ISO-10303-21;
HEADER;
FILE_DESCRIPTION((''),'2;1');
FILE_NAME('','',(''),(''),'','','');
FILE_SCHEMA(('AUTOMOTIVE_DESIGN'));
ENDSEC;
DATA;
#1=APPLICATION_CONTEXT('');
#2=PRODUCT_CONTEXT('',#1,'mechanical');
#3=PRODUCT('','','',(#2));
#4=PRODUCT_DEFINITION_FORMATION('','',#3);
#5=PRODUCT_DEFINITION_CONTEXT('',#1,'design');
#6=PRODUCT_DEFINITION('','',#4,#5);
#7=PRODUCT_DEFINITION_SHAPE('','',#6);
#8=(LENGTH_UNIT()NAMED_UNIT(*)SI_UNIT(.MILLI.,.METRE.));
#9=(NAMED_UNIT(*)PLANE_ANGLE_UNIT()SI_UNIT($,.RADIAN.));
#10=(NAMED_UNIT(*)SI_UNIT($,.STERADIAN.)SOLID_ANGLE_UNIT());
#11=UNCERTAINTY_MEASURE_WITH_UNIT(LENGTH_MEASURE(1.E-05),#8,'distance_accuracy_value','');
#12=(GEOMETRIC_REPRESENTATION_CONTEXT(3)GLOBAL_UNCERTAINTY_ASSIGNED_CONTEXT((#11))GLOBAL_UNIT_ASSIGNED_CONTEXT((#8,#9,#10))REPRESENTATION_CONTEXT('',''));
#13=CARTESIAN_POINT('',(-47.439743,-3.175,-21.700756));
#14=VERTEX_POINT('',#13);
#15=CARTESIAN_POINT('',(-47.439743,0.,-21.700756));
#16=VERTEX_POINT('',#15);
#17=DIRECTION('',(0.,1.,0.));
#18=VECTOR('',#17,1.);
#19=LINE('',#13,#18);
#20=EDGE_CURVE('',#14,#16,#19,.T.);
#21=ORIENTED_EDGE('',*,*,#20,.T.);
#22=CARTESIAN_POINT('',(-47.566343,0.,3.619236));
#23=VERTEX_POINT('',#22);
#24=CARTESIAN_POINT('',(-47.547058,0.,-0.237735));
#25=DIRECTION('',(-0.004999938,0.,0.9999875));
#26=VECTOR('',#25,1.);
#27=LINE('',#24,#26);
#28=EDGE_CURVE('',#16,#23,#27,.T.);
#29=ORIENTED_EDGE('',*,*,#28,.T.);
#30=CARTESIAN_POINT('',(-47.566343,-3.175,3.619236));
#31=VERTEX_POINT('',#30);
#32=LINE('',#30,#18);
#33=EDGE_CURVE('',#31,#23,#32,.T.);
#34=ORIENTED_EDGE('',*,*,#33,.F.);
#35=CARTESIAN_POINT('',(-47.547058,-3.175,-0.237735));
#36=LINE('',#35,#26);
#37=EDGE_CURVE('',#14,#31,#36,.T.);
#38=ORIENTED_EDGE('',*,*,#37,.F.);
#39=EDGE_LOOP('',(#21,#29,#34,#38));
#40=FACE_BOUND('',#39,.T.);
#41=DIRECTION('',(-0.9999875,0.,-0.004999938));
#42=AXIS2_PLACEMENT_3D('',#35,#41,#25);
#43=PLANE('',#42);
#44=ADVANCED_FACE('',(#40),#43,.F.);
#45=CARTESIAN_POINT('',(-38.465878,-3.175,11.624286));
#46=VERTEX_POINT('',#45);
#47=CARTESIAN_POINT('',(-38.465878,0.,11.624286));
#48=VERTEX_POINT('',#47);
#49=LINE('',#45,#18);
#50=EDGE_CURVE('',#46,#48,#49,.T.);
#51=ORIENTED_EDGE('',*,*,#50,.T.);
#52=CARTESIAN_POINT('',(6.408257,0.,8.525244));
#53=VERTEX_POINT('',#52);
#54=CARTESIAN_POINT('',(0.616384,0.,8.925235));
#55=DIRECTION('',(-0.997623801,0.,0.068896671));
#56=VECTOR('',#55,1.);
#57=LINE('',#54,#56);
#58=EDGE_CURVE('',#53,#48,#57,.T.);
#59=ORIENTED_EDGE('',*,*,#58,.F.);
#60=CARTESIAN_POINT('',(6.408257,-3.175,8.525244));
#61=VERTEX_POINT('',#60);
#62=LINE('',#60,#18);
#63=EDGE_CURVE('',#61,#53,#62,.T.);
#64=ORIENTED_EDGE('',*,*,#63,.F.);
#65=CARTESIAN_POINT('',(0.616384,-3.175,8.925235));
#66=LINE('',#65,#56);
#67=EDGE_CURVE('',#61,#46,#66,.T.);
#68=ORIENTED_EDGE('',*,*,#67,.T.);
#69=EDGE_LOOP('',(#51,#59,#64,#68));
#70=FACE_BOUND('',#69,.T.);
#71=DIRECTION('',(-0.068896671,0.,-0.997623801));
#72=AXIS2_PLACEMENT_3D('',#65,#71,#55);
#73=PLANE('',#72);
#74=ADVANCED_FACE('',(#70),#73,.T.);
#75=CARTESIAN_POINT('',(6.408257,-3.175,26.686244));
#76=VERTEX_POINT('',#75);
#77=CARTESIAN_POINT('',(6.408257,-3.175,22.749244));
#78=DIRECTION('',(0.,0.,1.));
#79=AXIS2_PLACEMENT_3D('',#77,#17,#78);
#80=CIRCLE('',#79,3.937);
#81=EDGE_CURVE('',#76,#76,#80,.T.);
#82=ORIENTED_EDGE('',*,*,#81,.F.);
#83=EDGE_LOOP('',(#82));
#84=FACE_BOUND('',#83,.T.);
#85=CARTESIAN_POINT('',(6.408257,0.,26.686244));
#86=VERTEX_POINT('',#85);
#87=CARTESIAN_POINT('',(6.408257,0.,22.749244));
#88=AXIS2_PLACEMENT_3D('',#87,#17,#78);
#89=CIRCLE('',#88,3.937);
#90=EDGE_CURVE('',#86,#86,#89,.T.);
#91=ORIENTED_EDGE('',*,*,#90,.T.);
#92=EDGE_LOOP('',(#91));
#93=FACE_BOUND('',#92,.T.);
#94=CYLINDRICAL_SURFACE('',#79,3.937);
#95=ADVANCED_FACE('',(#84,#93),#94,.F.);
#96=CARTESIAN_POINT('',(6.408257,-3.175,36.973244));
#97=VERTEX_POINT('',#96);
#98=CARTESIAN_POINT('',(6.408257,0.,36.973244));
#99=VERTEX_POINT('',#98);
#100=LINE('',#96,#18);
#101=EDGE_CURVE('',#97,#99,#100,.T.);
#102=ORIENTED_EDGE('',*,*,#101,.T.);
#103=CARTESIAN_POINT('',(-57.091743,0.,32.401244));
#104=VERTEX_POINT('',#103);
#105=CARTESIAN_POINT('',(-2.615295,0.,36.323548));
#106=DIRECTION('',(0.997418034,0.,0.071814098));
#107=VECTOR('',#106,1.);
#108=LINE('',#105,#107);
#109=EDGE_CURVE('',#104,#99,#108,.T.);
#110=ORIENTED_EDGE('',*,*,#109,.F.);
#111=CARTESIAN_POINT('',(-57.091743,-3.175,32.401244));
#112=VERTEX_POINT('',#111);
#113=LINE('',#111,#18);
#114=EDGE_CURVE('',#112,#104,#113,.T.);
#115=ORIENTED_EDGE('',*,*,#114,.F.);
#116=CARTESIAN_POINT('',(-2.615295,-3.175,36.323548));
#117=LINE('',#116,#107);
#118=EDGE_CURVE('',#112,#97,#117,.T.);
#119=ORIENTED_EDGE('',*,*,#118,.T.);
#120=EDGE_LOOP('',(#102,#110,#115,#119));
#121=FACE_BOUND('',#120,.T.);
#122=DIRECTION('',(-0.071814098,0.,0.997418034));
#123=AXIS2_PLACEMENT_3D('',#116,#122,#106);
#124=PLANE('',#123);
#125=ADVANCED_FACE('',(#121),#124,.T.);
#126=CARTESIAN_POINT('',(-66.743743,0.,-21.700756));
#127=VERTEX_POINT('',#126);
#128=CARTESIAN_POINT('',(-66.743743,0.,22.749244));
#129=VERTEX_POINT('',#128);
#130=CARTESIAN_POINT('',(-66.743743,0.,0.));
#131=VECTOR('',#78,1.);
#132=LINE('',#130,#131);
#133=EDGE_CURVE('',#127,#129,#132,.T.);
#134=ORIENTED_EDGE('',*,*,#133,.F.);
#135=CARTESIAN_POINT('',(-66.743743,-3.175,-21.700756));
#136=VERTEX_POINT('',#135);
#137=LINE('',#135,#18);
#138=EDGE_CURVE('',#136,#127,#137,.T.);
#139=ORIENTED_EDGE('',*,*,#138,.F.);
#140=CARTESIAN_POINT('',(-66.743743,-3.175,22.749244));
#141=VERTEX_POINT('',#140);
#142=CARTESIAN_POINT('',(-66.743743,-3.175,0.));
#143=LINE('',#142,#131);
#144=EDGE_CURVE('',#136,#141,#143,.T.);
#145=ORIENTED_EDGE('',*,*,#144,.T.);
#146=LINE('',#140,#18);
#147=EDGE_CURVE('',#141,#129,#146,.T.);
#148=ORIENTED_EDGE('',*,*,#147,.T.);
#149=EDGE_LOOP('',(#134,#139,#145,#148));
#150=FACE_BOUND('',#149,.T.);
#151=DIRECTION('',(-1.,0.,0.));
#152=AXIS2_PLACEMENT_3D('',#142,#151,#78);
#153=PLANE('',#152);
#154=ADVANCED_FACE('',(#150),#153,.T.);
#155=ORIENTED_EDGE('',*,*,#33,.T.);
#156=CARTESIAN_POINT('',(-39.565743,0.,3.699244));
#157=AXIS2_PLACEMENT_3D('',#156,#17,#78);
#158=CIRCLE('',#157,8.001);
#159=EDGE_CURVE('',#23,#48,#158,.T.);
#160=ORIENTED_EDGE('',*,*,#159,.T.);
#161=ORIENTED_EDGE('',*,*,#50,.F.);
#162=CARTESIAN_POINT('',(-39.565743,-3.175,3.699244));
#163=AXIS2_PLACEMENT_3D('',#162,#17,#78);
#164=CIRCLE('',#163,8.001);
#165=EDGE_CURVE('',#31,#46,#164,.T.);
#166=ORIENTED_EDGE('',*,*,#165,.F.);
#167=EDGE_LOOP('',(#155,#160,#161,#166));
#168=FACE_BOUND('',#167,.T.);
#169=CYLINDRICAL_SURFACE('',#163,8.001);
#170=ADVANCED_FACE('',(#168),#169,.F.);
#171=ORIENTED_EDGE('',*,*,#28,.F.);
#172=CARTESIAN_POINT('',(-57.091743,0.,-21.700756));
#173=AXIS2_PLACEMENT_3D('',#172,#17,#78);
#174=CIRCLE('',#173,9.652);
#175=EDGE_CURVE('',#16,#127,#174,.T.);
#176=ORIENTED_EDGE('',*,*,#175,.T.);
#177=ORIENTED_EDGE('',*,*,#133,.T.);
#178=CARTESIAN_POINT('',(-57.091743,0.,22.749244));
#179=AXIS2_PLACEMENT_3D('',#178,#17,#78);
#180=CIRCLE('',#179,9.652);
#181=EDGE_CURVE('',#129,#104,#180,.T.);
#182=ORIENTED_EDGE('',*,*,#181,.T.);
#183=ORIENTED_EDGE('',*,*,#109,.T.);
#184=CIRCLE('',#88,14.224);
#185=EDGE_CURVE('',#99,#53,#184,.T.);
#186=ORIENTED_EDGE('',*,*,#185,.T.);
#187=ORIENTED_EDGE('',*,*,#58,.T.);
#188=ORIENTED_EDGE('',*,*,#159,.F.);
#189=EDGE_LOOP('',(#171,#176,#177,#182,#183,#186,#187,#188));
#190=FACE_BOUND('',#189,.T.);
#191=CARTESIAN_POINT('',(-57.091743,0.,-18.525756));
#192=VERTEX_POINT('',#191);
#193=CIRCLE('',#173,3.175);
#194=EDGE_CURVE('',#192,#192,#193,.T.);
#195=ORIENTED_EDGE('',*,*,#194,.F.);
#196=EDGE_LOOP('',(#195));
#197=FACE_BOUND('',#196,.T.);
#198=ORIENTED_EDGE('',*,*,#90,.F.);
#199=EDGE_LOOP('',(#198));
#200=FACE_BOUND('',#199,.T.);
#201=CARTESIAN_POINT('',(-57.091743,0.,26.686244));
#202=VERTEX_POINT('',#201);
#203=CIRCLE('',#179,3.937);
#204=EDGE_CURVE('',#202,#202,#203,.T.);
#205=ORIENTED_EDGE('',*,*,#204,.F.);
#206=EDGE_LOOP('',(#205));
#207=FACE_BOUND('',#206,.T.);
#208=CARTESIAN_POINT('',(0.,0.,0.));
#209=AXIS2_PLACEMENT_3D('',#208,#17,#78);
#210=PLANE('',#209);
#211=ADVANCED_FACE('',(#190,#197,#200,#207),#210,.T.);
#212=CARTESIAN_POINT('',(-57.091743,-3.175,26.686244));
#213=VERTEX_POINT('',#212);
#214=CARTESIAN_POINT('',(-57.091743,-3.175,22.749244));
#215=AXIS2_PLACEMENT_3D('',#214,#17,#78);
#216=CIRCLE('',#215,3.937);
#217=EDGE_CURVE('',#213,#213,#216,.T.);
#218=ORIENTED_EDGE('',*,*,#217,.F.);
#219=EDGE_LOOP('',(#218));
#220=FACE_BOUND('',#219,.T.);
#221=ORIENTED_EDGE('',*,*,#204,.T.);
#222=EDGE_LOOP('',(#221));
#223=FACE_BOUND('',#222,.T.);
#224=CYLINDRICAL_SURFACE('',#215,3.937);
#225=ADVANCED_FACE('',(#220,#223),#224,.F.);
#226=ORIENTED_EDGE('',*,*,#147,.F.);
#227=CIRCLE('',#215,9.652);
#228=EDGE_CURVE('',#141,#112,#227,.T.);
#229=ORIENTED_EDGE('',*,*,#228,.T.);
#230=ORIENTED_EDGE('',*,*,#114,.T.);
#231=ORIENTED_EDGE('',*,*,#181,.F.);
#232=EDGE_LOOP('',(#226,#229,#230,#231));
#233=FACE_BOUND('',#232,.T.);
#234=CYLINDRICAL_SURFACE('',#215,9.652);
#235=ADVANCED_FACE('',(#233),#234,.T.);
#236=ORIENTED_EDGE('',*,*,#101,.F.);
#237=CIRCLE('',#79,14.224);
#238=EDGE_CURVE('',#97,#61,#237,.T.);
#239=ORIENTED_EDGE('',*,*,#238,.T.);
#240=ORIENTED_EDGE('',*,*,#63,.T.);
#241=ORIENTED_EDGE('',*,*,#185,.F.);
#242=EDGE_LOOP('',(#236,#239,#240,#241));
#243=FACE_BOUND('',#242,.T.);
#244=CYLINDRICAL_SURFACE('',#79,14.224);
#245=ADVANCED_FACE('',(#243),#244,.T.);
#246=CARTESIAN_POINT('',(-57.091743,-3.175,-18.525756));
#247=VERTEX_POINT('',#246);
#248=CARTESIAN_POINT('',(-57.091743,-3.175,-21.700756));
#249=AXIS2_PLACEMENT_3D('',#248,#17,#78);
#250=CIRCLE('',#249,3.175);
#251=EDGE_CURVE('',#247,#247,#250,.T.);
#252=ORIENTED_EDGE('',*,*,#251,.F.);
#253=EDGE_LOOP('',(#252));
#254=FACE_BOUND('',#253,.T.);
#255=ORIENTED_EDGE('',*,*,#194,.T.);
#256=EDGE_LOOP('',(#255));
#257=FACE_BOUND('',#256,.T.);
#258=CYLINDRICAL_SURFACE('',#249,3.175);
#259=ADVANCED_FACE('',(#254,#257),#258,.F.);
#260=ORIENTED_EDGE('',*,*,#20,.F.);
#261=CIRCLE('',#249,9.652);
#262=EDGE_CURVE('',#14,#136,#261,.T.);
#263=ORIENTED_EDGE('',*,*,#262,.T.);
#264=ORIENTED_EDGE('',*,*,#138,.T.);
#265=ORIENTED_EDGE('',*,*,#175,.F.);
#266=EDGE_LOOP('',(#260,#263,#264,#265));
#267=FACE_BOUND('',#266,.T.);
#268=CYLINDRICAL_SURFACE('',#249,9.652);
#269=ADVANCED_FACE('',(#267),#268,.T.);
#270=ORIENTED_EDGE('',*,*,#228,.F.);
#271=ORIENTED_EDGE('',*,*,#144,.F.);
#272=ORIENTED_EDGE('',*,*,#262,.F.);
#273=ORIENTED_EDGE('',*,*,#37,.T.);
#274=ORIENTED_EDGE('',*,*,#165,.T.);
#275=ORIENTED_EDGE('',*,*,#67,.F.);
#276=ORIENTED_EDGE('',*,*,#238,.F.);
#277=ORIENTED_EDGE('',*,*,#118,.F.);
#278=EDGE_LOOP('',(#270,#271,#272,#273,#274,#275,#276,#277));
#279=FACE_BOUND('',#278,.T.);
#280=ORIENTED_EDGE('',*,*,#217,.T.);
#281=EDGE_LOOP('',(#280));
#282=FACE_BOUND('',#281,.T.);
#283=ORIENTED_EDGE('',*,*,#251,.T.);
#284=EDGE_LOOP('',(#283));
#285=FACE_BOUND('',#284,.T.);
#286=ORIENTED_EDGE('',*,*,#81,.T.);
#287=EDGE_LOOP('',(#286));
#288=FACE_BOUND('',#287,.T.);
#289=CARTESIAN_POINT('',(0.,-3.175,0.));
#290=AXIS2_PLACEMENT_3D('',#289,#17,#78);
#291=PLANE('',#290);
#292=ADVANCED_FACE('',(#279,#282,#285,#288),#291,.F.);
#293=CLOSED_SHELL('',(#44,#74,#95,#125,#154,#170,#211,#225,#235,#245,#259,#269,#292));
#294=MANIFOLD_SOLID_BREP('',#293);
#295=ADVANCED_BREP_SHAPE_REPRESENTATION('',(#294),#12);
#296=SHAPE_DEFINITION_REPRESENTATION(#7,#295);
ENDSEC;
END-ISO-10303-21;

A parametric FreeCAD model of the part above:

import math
import FreeCAD as App
import Part
import Sketcher
Q = App.Units.Quantity

doc = App.newDocument("Part")
body = doc.addObject("PartDesign::Body", "Body")

# Sketch on XZ plane
sketch1 = doc.addObject("Sketcher::SketchObject", "Sketch")
body.addObject(sketch1)
sketch1.AttachmentSupport = (doc.XZ_Plane, [""])
sketch1.MapMode = "FlatFace"
sketch1.addGeometry([
    Part.ArcOfCircle(Part.Circle(App.Vector(-57.09, -21.7, 0), App.Vector(0, 0, 1), 9.65), math.radians(180), math.radians(360)),  # 0
    Part.LineSegment(App.Vector(-66.74, -21.7, 0), App.Vector(-66.74, 22.75, 0)),  # 1
    Part.ArcOfCircle(Part.Circle(App.Vector(-57.09, 22.75, 0), App.Vector(0, 0, 1), 9.65), math.radians(90), math.radians(180)),  # 2
    Part.LineSegment(App.Vector(-57.09, 32.4, 0), App.Vector(4.37, 36.83, 0)),  # 3
    Part.LineSegment(App.Vector(4.37, 36.83, 0), App.Vector(6.41, 36.97, 0)),  # 4
    Part.ArcOfCircle(Part.Circle(App.Vector(6.41, 22.75, 0), App.Vector(0, 0, 1), 14.22), math.radians(-90), math.radians(90)),  # 5
    Part.LineSegment(App.Vector(6.41, 8.53, 0), App.Vector(4.45, 8.66, 0)),  # 6
    Part.LineSegment(App.Vector(4.45, 8.66, 0), App.Vector(-38.47, 11.62, 0)),  # 7
    Part.ArcOfCircle(Part.Circle(App.Vector(-39.57, 3.7, 0), App.Vector(0, 0, 1), 8), math.radians(82.1), math.radians(90)),  # 8
    Part.ArcOfCircle(Part.Circle(App.Vector(-39.57, 3.7, 0), App.Vector(0, 0, 1), 8), math.radians(90), math.radians(180)),  # 9
    Part.LineSegment(App.Vector(-47.57, 3.7, 0), App.Vector(-47.57, 3.62, 0)),  # 10
    Part.LineSegment(App.Vector(-47.57, 3.62, 0), App.Vector(-47.44, -21.6, 0)),  # 11
    Part.LineSegment(App.Vector(-47.44, -21.6, 0), App.Vector(-47.44, -21.7, 0)),  # 12
    Part.Circle(App.Vector(-57.09, 22.75, 0), App.Vector(0, 0, 1), 3.94),  # 13
    Part.Circle(App.Vector(6.41, 22.75, 0), App.Vector(0, 0, 1), 3.94),  # 14
    Part.Circle(App.Vector(-57.09, -21.7, 0), App.Vector(0, 0, 1), 3.17),  # 15
], False)
sketch1.addConstraint([
    Sketcher.Constraint("Tangent", 0, 1, 1, 1),
    Sketcher.Constraint("Tangent", 1, 2, 2, 2),
    Sketcher.Constraint("Coincident", 2, 1, 3, 1),
    Sketcher.Constraint("Coincident", 3, 2, 4, 1),
    Sketcher.Constraint("Coincident", 4, 2, 5, 2),
    Sketcher.Constraint("Coincident", 5, 1, 6, 1),
    Sketcher.Constraint("Coincident", 6, 2, 7, 1),
    Sketcher.Constraint("Coincident", 7, 2, 8, 1),
    Sketcher.Constraint("Tangent", 8, 2, 9, 1),
    Sketcher.Constraint("Coincident", 9, 2, 10, 1),
    Sketcher.Constraint("Coincident", 10, 2, 11, 1),
    Sketcher.Constraint("Coincident", 11, 2, 12, 1),
    Sketcher.Constraint("Coincident", 12, 2, 0, 2),
    Sketcher.Constraint("Vertical", 1),
    Sketcher.Constraint("Coincident", 13, 3, 2, 3),
    Sketcher.Constraint("Coincident", 14, 3, 5, 3),
    Sketcher.Constraint("Coincident", 15, 3, 0, 3),
    Sketcher.Constraint("Equal", 0, 2),
    Sketcher.Constraint("Equal", 8, 9),
    Sketcher.Constraint("Equal", 13, 14),
    Sketcher.Constraint("Parallel", 3, 4),
    Sketcher.Constraint("Parallel", 6, 7),
    Sketcher.Constraint("Parallel", 10, 11),
    Sketcher.Constraint("Parallel", 11, 12),
    Sketcher.Constraint("Horizontal", 2, 3, 5, 3),
    Sketcher.Constraint("Horizontal", 8, 3, 9, 2),
    Sketcher.Constraint("Horizontal", 0, 1, 12, 2),
    Sketcher.Constraint("Vertical", 15, 3, 2, 1),
    Sketcher.Constraint("Vertical", 14, 3, 4, 2),
    Sketcher.Constraint("Vertical", 4, 2, 5, 1),
    Sketcher.Constraint("Vertical", 9, 3, 8, 2),
    Sketcher.Constraint("Diameter", 13, Q("0.31 in")),
    Sketcher.Constraint("Diameter", 15, Q("0.25 in")),
    Sketcher.Constraint("Radius", 0, Q("0.38 in")),
    Sketcher.Constraint("Radius", 5, Q("0.56 in")),
    Sketcher.Constraint("Radius", 8, Q("0.315 in")),
    Sketcher.Constraint("DistanceY", 0, 3, 8, 3, Q("1 in")),
    Sketcher.Constraint("DistanceY", 1, 1, 1, 2, Q("1.75 in")),
    Sketcher.Constraint("DistanceX", 2, 3, 5, 3, Q("2.5 in")),
    Sketcher.Constraint("DistanceX", 2, 3, 8, 3, Q("0.69 in")),
    Sketcher.Constraint("Distance", 12, Q("0.0038 in")),
    Sketcher.Constraint("DistanceX", 9, 2, 10, 2, 0.0004),
    Sketcher.Constraint("Distance", 3, 61.621412),
    Sketcher.Constraint("DistanceY", -1, 1, 3, 2, 36.82653),
    Sketcher.Constraint("DistanceX", -1, 1, 6, 2, 4.452942),
    Sketcher.Constraint("DistanceY", -1, 1, 6, 2, 8.660279),
    Sketcher.Constraint("DistanceX", 7, 2, -1, 1, 38.465878),
])
pad1 = doc.addObject("PartDesign::Pad", "Pad")
body.addObject(pad1)
pad1.Profile = sketch1
pad1.Length = Q("0.125 in")

doc.recompute()
